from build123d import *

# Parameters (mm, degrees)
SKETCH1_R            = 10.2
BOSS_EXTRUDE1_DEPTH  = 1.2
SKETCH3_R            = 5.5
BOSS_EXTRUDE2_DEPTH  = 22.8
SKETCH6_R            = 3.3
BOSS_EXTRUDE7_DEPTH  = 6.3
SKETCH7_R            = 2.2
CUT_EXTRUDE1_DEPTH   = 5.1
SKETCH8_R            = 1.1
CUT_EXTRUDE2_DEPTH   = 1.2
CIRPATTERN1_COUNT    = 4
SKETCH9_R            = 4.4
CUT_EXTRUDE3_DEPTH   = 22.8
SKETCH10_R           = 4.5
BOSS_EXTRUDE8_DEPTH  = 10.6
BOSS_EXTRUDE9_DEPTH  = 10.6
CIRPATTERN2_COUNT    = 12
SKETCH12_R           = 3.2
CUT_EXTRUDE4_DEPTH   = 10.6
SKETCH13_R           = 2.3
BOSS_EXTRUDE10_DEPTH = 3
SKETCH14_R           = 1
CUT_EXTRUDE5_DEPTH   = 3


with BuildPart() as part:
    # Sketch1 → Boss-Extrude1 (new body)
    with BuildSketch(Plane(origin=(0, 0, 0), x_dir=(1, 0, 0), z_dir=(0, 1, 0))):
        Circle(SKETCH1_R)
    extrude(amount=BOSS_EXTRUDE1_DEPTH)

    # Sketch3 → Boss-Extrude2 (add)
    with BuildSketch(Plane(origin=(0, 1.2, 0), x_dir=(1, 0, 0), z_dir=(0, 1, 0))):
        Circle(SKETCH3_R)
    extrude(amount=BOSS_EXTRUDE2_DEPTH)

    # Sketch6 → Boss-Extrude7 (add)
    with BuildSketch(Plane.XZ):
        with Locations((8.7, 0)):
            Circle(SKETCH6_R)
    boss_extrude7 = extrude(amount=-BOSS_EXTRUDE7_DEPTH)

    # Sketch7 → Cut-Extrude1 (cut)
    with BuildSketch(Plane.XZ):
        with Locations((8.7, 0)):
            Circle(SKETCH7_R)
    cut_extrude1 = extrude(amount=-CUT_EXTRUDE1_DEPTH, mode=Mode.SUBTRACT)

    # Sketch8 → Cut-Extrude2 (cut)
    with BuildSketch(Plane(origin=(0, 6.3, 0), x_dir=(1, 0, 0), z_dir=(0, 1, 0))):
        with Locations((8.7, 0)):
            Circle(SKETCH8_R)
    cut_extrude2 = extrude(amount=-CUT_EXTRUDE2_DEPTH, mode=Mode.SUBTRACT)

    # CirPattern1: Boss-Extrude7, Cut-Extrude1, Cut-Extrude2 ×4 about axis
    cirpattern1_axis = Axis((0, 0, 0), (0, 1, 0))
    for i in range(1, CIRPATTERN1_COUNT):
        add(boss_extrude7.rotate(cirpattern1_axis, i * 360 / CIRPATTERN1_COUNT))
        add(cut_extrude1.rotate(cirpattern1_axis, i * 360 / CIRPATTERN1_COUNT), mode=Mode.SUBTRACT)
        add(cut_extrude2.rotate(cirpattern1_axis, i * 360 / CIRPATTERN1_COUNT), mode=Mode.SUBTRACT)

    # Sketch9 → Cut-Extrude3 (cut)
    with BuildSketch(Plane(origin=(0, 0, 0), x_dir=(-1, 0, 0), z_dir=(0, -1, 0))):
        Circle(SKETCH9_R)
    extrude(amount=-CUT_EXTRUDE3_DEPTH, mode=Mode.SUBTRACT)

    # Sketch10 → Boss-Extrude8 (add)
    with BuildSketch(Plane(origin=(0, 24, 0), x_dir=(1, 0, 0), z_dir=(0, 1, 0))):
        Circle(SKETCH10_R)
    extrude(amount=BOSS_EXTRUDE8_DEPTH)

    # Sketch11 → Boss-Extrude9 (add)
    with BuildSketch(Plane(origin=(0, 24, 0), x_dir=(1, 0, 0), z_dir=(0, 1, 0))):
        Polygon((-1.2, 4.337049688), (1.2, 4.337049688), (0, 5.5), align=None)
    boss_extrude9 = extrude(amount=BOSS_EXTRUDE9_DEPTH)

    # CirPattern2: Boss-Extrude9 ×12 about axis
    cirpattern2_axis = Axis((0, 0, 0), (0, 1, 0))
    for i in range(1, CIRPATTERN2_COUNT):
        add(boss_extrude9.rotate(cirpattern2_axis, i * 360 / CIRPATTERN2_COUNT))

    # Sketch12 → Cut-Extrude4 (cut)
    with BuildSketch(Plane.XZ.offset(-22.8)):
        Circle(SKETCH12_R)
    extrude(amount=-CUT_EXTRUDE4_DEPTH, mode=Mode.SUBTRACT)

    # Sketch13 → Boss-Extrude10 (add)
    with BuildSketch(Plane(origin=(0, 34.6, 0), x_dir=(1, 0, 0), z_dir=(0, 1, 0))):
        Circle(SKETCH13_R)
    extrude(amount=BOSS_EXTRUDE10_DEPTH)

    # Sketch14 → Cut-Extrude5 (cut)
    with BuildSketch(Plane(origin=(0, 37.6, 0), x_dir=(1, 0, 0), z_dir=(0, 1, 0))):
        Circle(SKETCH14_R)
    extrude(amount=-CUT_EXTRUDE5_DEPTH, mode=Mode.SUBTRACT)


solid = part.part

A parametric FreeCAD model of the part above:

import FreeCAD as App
import Part
import Sketcher
Q = App.Units.Quantity


def add_polygon(sketch, points):
    """Adds a closed chain of lines whose ends are joined by coincident constraints."""
    first, n = sketch.GeometryCount, len(points)
    for a, b in zip(points, points[1:] + points[:1]):
        sketch.addGeometry(Part.LineSegment(App.Vector(*a, 0), App.Vector(*b, 0)), False)
    for i in range(n):
        sketch.addConstraint(Sketcher.Constraint("Coincident", first + i, 2, first + (i + 1) % n, 1))

doc = App.newDocument("Part")
body = doc.addObject("PartDesign::Body", "Body")

# Sketch on XZ plane
sketch1 = body.newObject("Sketcher::SketchObject", "Sketch")
sketch1.AttachmentSupport = (doc.getObject("XZ_Plane"), [""])
sketch1.MapMode = "FlatFace"
sketch1.addGeometry(Part.Circle(App.Vector(0, 0, 0), App.Vector(0, 0, 1), 10.2), False)
sketch1.addConstraint(Sketcher.Constraint("Coincident", 0, 3, -1, 1))
sketch1.addConstraint(Sketcher.Constraint("Diameter", 0, Q("20.4 mm")))
pad1 = body.newObject("PartDesign::Pad", "Pad")
pad1.Profile = sketch1
pad1.Length = 1.2
pad1.Reversed = True

# Sketch on XZ plane
sketch2 = body.newObject("Sketcher::SketchObject", "Sketch001")
sketch2.AttachmentSupport = (doc.getObject("XZ_Plane"), [""])
sketch2.MapMode = "FlatFace"
sketch2.AttachmentOffset = App.Placement(App.Vector(0, 0, -1.2), App.Rotation())
sketch2.addGeometry(Part.Circle(App.Vector(0, 0, 0), App.Vector(0, 0, 1), 5.5), False)
sketch2.addConstraint(Sketcher.Constraint("Coincident", 0, 3, -1, 1))
sketch2.addConstraint(Sketcher.Constraint("Diameter", 0, Q("11 mm")))
pad2 = body.newObject("PartDesign::Pad", "Pad001")
pad2.Profile = sketch2
pad2.Length = 22.8
pad2.Reversed = True

# Sketch on XZ plane
sketch3 = body.newObject("Sketcher::SketchObject", "Sketch002")
sketch3.AttachmentSupport = (doc.getObject("XZ_Plane"), [""])
sketch3.MapMode = "FlatFace"
sketch3.addGeometry(Part.Circle(App.Vector(8.7, 0, 0), App.Vector(0, 0, 1), 3.3), False)
sketch3.addConstraint(Sketcher.Constraint("PointOnObject", 0, 3, -1))
sketch3.addConstraint(Sketcher.Constraint("Diameter", 0, Q("6.6 mm")))
sketch3.addConstraint(Sketcher.Constraint("DistanceX", -1, 1, 0, 3, Q("8.7 mm")))
pad3 = body.newObject("PartDesign::Pad", "Pad002")
pad3.Profile = sketch3
pad3.Length = 6.3
pad3.Reversed = True

# Sketch on XZ plane
sketch4 = body.newObject("Sketcher::SketchObject", "Sketch003")
sketch4.AttachmentSupport = (doc.getObject("XZ_Plane"), [""])
sketch4.MapMode = "FlatFace"
sketch4.addGeometry(Part.Circle(App.Vector(8.7, 0, 0), App.Vector(0, 0, 1), 2.2), False)
sketch4.addConstraint(Sketcher.Constraint("PointOnObject", 0, 3, -1))
sketch4.addConstraint(Sketcher.Constraint("Diameter", 0, Q("4.4 mm")))
sketch4.addConstraint(Sketcher.Constraint("DistanceX", -1, 1, 0, 3, Q("8.7 mm")))
pocket1 = body.newObject("PartDesign::Pocket", "Pocket")
pocket1.Profile = sketch4
pocket1.Length = 5.1

# Sketch on XZ plane
sketch5 = body.newObject("Sketcher::SketchObject", "Sketch004")
sketch5.AttachmentSupport = (doc.getObject("XZ_Plane"), [""])
sketch5.MapMode = "FlatFace"
sketch5.AttachmentOffset = App.Placement(App.Vector(0, 0, -6.3), App.Rotation())
sketch5.addGeometry(Part.Circle(App.Vector(8.7, 0, 0), App.Vector(0, 0, 1), 1.1), False)
sketch5.addConstraint(Sketcher.Constraint("PointOnObject", 0, 3, -1))
sketch5.addConstraint(Sketcher.Constraint("Diameter", 0, Q("2.2 mm")))
sketch5.addConstraint(Sketcher.Constraint("DistanceX", -1, 1, 0, 3, Q("8.7 mm")))
pocket2 = body.newObject("PartDesign::Pocket", "Pocket001")
pocket2.Profile = sketch5
pocket2.Length = 1.2
pocket2.Reversed = True
doc.recompute()

polarpattern = body.newObject("PartDesign::PolarPattern", "PolarPattern")
polarpattern.Originals = [pad3, pocket1, pocket2]
polarpattern.Axis = (doc.getObject("Y_Axis"), [""])
polarpattern.Angle = 360
polarpattern.Occurrences = 4
body.Tip = polarpattern

# Sketch on XZ plane
sketch6 = body.newObject("Sketcher::SketchObject", "Sketch005")
sketch6.AttachmentSupport = (doc.getObject("XZ_Plane"), [""])
sketch6.MapMode = "FlatFace"
sketch6.addGeometry(Part.Circle(App.Vector(0, 0, 0), App.Vector(0, 0, 1), 4.4), False)
sketch6.addConstraint(Sketcher.Constraint("Coincident", 0, 3, -1, 1))
sketch6.addConstraint(Sketcher.Constraint("Diameter", 0, Q("8.8 mm")))
pocket3 = body.newObject("PartDesign::Pocket", "Pocket002")
pocket3.Profile = sketch6
pocket3.Length = 22.8

# Sketch on XZ plane
sketch7 = body.newObject("Sketcher::SketchObject", "Sketch006")
sketch7.AttachmentSupport = (doc.getObject("XZ_Plane"), [""])
sketch7.MapMode = "FlatFace"
sketch7.AttachmentOffset = App.Placement(App.Vector(0, 0, -24), App.Rotation())
sketch7.addGeometry(Part.Circle(App.Vector(0, 0, 0), App.Vector(0, 0, 1), 4.5), False)
sketch7.addConstraint(Sketcher.Constraint("Coincident", 0, 3, -1, 1))
sketch7.addConstraint(Sketcher.Constraint("Diameter", 0, Q("9 mm")))
pad4 = body.newObject("PartDesign::Pad", "Pad003")
pad4.Profile = sketch7
pad4.Length = 10.6
pad4.Reversed = True

# Sketch on XZ plane
sketch8 = body.newObject("Sketcher::SketchObject", "Sketch007")
sketch8.AttachmentSupport = (doc.getObject("XZ_Plane"), [""])
sketch8.MapMode = "FlatFace"
sketch8.AttachmentOffset = App.Placement(App.Vector(0, 0, -24), App.Rotation())
add_polygon(sketch8, [(-1.2, -4.33705), (1.2, -4.33705), (0, -5.5)])  # lines 0-2
sketch8.addConstraint(Sketcher.Constraint("Horizontal", 0))
sketch8.addConstraint(Sketcher.Constraint("PointOnObject", 1, 2, -2))
sketch8.addConstraint(Sketcher.Constraint("Equal", 1, 2))
sketch8.addConstraint(Sketcher.Constraint("DistanceX", 0, 1, 0, 2, Q("2.4 mm")))
sketch8.addConstraint(Sketcher.Constraint("DistanceY", 1, 2, -1, 1, Q("5.5 mm")))
sketch8.addConstraint(Sketcher.Constraint("DistanceY", 0, 2, -1, 1, Q("4.33705 mm")))
pad5 = body.newObject("PartDesign::Pad", "Pad004")
pad5.Profile = sketch8
pad5.Length = 10.6
pad5.Reversed = True
doc.recompute()

polarpattern2 = body.newObject("PartDesign::PolarPattern", "PolarPattern001")
polarpattern2.Originals = [pad5]
polarpattern2.Axis = (doc.getObject("Y_Axis"), [""])
polarpattern2.Angle = 360
polarpattern2.Occurrences = 12
body.Tip = polarpattern2

# Sketch on XZ plane
sketch9 = body.newObject("Sketcher::SketchObject", "Sketch008")
sketch9.AttachmentSupport = (doc.getObject("XZ_Plane"), [""])
sketch9.MapMode = "FlatFace"
sketch9.AttachmentOffset = App.Placement(App.Vector(0, 0, -22.8), App.Rotation())
sketch9.addGeometry(Part.Circle(App.Vector(0, 0, 0), App.Vector(0, 0, 1), 3.2), False)
sketch9.addConstraint(Sketcher.Constraint("Coincident", 0, 3, -1, 1))
sketch9.addConstraint(Sketcher.Constraint("Diameter", 0, Q("6.4 mm")))
pocket4 = body.newObject("PartDesign::Pocket", "Pocket003")
pocket4.Profile = sketch9
pocket4.Length = 10.6

# Sketch on XZ plane
sketch10 = body.newObject("Sketcher::SketchObject", "Sketch009")
sketch10.AttachmentSupport = (doc.getObject("XZ_Plane"), [""])
sketch10.MapMode = "FlatFace"
sketch10.AttachmentOffset = App.Placement(App.Vector(0, 0, -34.6), App.Rotation())
sketch10.addGeometry(Part.Circle(App.Vector(0, 0, 0), App.Vector(0, 0, 1), 2.3), False)
sketch10.addConstraint(Sketcher.Constraint("Coincident", 0, 3, -1, 1))
sketch10.addConstraint(Sketcher.Constraint("Diameter", 0, Q("4.6 mm")))
pad6 = body.newObject("PartDesign::Pad", "Pad005")
pad6.Profile = sketch10
pad6.Length = 3
pad6.Reversed = True

# Sketch on XZ plane
sketch11 = body.newObject("Sketcher::SketchObject", "Sketch010")
sketch11.AttachmentSupport = (doc.getObject("XZ_Plane"), [""])
sketch11.MapMode = "FlatFace"
sketch11.AttachmentOffset = App.Placement(App.Vector(0, 0, -37.6), App.Rotation())
sketch11.addGeometry(Part.Circle(App.Vector(0, 0, 0), App.Vector(0, 0, 1), 1), False)
sketch11.addConstraint(Sketcher.Constraint("Coincident", 0, 3, -1, 1))
sketch11.addConstraint(Sketcher.Constraint("Diameter", 0, Q("2 mm")))
pocket5 = body.newObject("PartDesign::Pocket", "Pocket004")
pocket5.Profile = sketch11
pocket5.Length = 3
pocket5.Reversed = True

doc.recompute()
